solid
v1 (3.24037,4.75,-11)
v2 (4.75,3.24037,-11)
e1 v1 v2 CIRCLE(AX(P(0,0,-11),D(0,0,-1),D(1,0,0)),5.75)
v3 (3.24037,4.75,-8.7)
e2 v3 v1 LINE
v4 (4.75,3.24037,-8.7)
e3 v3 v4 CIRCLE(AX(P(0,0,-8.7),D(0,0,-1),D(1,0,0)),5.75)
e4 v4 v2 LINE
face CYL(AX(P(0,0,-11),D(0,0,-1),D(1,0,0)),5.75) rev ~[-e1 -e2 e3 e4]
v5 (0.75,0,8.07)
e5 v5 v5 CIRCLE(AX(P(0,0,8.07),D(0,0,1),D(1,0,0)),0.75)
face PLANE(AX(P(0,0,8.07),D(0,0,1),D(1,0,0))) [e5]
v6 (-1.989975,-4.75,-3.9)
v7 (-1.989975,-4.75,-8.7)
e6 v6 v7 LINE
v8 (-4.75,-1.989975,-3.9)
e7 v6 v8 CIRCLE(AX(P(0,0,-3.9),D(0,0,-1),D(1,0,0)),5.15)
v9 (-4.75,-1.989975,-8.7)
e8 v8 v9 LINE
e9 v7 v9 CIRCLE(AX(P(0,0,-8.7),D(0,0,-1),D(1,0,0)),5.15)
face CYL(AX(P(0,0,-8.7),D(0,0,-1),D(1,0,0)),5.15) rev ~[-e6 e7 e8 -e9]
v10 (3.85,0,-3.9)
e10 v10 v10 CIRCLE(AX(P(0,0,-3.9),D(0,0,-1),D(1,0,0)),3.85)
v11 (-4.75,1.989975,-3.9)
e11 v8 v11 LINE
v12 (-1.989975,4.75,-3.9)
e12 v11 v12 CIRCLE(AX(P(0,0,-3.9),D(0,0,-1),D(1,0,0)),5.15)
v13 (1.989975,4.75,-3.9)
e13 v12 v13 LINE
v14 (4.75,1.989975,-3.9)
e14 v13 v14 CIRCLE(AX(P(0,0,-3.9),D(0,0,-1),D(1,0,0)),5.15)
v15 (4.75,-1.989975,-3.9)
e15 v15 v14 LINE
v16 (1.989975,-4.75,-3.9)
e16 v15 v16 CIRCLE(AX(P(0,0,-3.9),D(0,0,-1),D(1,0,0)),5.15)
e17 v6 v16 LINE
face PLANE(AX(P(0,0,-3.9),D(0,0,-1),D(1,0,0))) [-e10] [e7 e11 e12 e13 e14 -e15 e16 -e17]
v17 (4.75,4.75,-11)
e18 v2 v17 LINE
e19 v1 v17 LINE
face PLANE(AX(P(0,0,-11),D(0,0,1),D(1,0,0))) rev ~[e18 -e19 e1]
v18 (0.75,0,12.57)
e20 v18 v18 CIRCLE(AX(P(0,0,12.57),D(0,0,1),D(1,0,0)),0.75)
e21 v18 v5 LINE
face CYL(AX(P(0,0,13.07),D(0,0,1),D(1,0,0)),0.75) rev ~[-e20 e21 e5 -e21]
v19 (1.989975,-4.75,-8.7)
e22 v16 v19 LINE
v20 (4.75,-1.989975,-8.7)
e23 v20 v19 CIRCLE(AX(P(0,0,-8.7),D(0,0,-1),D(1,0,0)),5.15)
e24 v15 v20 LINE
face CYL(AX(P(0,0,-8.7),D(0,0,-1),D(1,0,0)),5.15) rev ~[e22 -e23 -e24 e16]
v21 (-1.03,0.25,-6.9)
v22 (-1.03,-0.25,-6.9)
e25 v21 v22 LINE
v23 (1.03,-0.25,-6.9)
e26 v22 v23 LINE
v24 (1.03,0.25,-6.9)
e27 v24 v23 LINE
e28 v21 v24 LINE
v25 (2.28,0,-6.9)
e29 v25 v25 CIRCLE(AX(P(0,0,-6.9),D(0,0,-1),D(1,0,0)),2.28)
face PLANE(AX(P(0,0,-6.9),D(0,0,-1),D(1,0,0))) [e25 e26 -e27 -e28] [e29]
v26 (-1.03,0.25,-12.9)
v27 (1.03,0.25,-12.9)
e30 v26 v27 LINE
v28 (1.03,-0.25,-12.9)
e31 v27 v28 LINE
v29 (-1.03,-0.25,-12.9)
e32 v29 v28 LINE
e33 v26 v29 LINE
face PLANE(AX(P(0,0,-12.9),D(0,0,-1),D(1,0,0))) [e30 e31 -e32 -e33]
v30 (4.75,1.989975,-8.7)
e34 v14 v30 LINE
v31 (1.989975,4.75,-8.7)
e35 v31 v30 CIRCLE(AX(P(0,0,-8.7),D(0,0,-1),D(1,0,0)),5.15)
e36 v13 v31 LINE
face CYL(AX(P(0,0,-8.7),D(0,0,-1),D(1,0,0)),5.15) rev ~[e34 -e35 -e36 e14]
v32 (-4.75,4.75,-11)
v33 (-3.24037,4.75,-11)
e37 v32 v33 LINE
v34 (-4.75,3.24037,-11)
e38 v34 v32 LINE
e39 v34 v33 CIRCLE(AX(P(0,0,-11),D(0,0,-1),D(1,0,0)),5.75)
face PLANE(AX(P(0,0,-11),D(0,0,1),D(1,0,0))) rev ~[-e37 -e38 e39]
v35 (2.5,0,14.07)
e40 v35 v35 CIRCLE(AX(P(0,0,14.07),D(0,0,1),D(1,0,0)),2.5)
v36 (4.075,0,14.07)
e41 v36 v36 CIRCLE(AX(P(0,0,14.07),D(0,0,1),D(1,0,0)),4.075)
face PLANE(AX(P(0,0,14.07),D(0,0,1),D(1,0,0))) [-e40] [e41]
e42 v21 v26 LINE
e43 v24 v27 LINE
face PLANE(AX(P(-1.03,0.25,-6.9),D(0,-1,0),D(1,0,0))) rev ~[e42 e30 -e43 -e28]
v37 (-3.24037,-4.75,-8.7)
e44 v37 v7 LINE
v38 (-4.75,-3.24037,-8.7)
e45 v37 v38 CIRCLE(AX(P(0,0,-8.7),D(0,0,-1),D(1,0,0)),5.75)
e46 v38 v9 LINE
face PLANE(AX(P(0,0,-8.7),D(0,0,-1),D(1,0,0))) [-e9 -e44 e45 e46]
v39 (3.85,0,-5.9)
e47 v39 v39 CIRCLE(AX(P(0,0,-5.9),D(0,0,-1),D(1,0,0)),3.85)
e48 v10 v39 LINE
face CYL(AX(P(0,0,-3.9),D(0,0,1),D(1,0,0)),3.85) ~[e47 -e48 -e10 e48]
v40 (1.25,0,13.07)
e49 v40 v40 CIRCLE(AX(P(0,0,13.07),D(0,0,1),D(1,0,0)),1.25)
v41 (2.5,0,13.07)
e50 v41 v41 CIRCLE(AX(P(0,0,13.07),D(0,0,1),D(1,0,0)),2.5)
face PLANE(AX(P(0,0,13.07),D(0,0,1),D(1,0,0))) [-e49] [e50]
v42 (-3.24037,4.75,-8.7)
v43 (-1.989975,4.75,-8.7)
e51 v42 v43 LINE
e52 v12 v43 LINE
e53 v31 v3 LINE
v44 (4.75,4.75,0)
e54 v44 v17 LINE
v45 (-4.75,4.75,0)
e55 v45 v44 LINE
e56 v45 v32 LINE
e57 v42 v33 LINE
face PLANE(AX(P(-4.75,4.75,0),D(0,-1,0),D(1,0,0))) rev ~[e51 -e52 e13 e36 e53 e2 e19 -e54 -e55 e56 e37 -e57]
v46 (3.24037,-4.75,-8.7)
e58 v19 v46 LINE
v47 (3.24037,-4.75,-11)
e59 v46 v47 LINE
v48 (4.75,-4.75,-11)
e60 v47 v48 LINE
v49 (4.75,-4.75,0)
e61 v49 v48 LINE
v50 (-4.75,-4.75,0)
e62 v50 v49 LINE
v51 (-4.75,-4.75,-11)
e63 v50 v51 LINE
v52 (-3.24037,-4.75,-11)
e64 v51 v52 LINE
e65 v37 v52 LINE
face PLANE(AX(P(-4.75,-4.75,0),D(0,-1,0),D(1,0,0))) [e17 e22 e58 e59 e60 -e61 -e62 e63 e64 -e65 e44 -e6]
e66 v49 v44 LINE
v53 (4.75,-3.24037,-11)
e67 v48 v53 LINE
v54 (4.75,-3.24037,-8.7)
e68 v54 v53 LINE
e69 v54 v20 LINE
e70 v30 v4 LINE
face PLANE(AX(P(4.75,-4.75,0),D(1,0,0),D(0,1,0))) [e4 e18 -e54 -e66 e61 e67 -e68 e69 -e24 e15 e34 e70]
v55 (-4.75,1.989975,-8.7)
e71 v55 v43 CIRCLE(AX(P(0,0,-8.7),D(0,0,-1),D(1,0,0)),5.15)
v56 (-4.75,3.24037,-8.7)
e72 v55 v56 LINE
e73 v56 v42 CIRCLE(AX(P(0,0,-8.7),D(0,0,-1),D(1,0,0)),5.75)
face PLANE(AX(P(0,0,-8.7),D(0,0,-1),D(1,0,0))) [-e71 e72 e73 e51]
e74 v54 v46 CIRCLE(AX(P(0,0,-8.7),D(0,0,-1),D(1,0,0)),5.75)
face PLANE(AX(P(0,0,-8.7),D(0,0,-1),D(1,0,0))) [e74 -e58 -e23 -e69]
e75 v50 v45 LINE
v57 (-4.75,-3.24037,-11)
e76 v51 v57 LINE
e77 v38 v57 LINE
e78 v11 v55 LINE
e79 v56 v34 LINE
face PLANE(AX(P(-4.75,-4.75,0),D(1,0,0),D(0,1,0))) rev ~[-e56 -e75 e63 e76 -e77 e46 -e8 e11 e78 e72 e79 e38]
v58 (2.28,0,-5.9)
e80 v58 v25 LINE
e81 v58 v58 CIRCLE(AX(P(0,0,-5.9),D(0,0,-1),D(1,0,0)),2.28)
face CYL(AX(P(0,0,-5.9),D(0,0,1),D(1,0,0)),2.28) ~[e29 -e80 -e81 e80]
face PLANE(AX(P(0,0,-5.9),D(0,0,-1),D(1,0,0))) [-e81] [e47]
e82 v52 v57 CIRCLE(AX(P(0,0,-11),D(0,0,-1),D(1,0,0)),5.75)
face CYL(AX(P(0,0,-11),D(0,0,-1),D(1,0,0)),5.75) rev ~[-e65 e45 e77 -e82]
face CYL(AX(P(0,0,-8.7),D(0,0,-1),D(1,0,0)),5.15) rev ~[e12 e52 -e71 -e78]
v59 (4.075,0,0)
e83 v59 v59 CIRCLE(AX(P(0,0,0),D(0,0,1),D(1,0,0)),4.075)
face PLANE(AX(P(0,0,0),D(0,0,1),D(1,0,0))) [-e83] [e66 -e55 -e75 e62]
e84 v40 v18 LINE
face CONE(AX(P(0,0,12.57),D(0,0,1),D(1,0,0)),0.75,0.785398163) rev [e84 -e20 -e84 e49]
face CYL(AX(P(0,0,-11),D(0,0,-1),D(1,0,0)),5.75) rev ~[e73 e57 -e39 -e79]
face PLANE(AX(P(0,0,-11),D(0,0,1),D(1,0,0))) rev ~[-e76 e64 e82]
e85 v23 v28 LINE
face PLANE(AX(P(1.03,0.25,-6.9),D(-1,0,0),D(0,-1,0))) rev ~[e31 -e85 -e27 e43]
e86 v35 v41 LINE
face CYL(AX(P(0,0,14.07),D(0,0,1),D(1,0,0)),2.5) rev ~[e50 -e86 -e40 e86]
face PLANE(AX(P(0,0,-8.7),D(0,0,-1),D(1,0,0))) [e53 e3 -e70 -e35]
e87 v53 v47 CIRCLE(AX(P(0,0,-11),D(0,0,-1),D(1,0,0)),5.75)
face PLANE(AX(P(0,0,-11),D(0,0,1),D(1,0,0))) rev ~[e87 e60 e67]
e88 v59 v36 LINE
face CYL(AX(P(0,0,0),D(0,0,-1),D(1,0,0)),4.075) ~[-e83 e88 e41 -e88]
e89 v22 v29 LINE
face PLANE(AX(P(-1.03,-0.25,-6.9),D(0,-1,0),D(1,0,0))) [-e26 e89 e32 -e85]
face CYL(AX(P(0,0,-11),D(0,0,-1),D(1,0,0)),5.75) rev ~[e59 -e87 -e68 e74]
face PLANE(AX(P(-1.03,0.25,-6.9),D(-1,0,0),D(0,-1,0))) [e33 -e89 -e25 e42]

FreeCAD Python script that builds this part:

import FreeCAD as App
import Part
import Sketcher
from FreeCAD import Vector


def edges_at(feature, points):
    """Names of the edges that pass closest to the given points."""
    edges = feature.Shape.Edges
    near = lambda p: min(range(len(edges)), key=lambda i: edges[i].distToShape(Part.Vertex(*p))[0])
    return sorted({f"Edge{near(p) + 1}" for p in points})

doc = App.newDocument("Part")
body = doc.addObject("PartDesign::Body", "Body")

# Sketch on XY plane
sketch1 = body.newObject("Sketcher::SketchObject", "Sketch")
sketch1.AttachmentSupport = (doc.getObject("XY_Plane"), [""])
sketch1.MapMode = "FlatFace"
sketch1.addGeometry([
    Part.LineSegment(Vector(-5, 5, 0), Vector(-5, -5, 0)),
    Part.LineSegment(Vector(-5, -5, 0), Vector(5, -5, 0)),
    Part.LineSegment(Vector(5, -5, 0), Vector(5, 5, 0)),
    Part.LineSegment(Vector(5, 5, 0), Vector(-5, 5, 0)),
], False)
sketch1.addConstraint([
    Sketcher.Constraint("Coincident", 0, 2, 1, 1),
    Sketcher.Constraint("Coincident", 1, 2, 2, 1),
    Sketcher.Constraint("Coincident", 2, 2, 3, 1),
    Sketcher.Constraint("Coincident", 3, 2, 0, 1),
    Sketcher.Constraint("Vertical", 0),
    Sketcher.Constraint("Horizontal", 1),
    Sketcher.Constraint("Vertical", 2),
    Sketcher.Constraint("Horizontal", 3),
    Sketcher.Constraint("Symmetric", 0, 2, 2, 2, -1, 1),
    Sketcher.Constraint("Equal", 3, 0),
    Sketcher.Constraint("DistanceX", 1, 1, 1, 2, 9.5),
])
pad1 = body.newObject("PartDesign::Pad", "Pad")
pad1.Profile = sketch1
pad1.Length = 11
pad1.Reversed = True

# Sketch on XY plane
sketch2 = body.newObject("Sketcher::SketchObject", "Sketch001")
sketch2.AttachmentSupport = (doc.getObject("XY_Plane"), [""])
sketch2.MapMode = "FlatFace"
sketch2.addGeometry(Part.Circle(Vector(0, 0, 0), Vector(0, 0, 1), 4.1), False)
sketch2.addConstraint([
    Sketcher.Constraint("Coincident", 0, 3, -1, 1),
    Sketcher.Constraint("Diameter", 0, 8.15),
])
pad2 = body.newObject("PartDesign::Pad", "Pad001")
pad2.Profile = sketch2
pad2.Length = 14.07

# Sketch on XY plane
sketch3 = body.newObject("Sketcher::SketchObject", "Sketch002")
sketch3.AttachmentSupport = (doc.getObject("XY_Plane"), [""])
sketch3.MapMode = "FlatFace"
sketch3.AttachmentOffset = App.Placement(Vector(0, 0, -11), App.Rotation())
sketch3.addGeometry(Part.Circle(Vector(0, 0, 0), Vector(0, 0, 1), 6), False)
sketch3.addConstraint([
    Sketcher.Constraint("Coincident", 0, 3, -1, 1),
    Sketcher.Constraint("Diameter", 0, 11.5),
])
pocket1 = body.newObject("PartDesign::Pocket", "Pocket")
pocket1.Profile = sketch3
pocket1.Length = 2.3
pocket1.Reversed = True

# Sketch on XY plane
sketch4 = body.newObject("Sketcher::SketchObject", "Sketch003")
sketch4.AttachmentSupport = (doc.getObject("XY_Plane"), [""])
sketch4.MapMode = "FlatFace"
sketch4.AttachmentOffset = App.Placement(Vector(0, 0, -8.7), App.Rotation())
sketch4.addGeometry(Part.Circle(Vector(0, 0, 0), Vector(0, 0, 1), 5), False)
sketch4.addConstraint([
    Sketcher.Constraint("Coincident", 0, 3, -1, 1),
    Sketcher.Constraint("Diameter", 0, 10.3),
])
pocket2 = body.newObject("PartDesign::Pocket", "Pocket001")
pocket2.Profile = sketch4
pocket2.Length = 4.8
pocket2.Reversed = True

# Sketch on XY plane
sketch5 = body.newObject("Sketcher::SketchObject", "Sketch004")
sketch5.AttachmentSupport = (doc.getObject("XY_Plane"), [""])
sketch5.MapMode = "FlatFace"
sketch5.AttachmentOffset = App.Placement(Vector(0, 0, 14.07), App.Rotation())
sketch5.addGeometry(Part.Circle(Vector(0, 0, 0), Vector(0, 0, 1), 2.5), False)
sketch5.addConstraint([
    Sketcher.Constraint("Coincident", 0, 3, -1, 1),
    Sketcher.Constraint("Diameter", 0, 5.0),
])
pocket3 = body.newObject("PartDesign::Pocket", "Pocket002")
pocket3.Profile = sketch5
pocket3.Length = 1

# Sketch on XY plane
sketch6 = body.newObject("Sketcher::SketchObject", "Sketch005")
sketch6.AttachmentSupport = (doc.getObject("XY_Plane"), [""])
sketch6.MapMode = "FlatFace"
sketch6.AttachmentOffset = App.Placement(Vector(0, 0, 13.07), App.Rotation())
sketch6.addGeometry(Part.Circle(Vector(0, 0, 0), Vector(0, 0, 1), 0.8), False)
sketch6.addConstraint([
    Sketcher.Constraint("Coincident", 0, 3, -1, 1),
    Sketcher.Constraint("Diameter", 0, 1.5),
])
pocket4 = body.newObject("PartDesign::Pocket", "Pocket003")
pocket4.Profile = sketch6
pocket4.Length = 5
doc.recompute()

chamfer = body.newObject("PartDesign::Chamfer", "Chamfer")
chamfer.Base = (pocket4, edges_at(pocket4, [(-0.75, 0, 13.07)]))
chamfer.Size = 0.5

# Sketch on XY plane
sketch7 = body.newObject("Sketcher::SketchObject", "Sketch006")
sketch7.AttachmentSupport = (doc.getObject("XY_Plane"), [""])
sketch7.MapMode = "FlatFace"
sketch7.AttachmentOffset = App.Placement(Vector(0, 0, -3.9), App.Rotation())
sketch7.addGeometry(Part.Circle(Vector(0, 0, 0), Vector(0, 0, 1), 3.9), False)
sketch7.addConstraint([
    Sketcher.Constraint("Coincident", 0, 3, -1, 1),
    Sketcher.Constraint("Diameter", 0, 7.7),
])
pad3 = body.newObject("PartDesign::Pad", "Pad002")
pad3.Profile = sketch7
pad3.Length = 2
pad3.Reversed = True

# Sketch on XY plane
sketch8 = body.newObject("Sketcher::SketchObject", "Sketch007")
sketch8.AttachmentSupport = (doc.getObject("XY_Plane"), [""])
sketch8.MapMode = "FlatFace"
sketch8.AttachmentOffset = App.Placement(Vector(0, 0, -5.9), App.Rotation())
sketch8.addGeometry(Part.Circle(Vector(0, 0, 0), Vector(0, 0, 1), 2.3), False)
sketch8.addConstraint([
    Sketcher.Constraint("Coincident", 0, 3, -1, 1),
    Sketcher.Constraint("Diameter", 0, 4.56),
])
pad4 = body.newObject("PartDesign::Pad", "Pad003")
pad4.Profile = sketch8
pad4.Length = 1
pad4.Reversed = True

# Sketch on XY plane
sketch9 = body.newObject("Sketcher::SketchObject", "Sketch008")
sketch9.AttachmentSupport = (doc.getObject("XY_Plane"), [""])
sketch9.MapMode = "FlatFace"
sketch9.AttachmentOffset = App.Placement(Vector(0, 0, -6.9), App.Rotation())
sketch9.addGeometry([
    Part.LineSegment(Vector(-1, -0.2, 0), Vector(-1, 0.2, 0)),
    Part.LineSegment(Vector(-1, 0.2, 0), Vector(1, 0.2, 0)),
    Part.LineSegment(Vector(1, 0.2, 0), Vector(1, -0.2, 0)),
    Part.LineSegment(Vector(1, -0.2, 0), Vector(-1, -0.2, 0)),
], False)
sketch9.addConstraint([
    Sketcher.Constraint("Coincident", 0, 2, 1, 1),
    Sketcher.Constraint("Coincident", 1, 2, 2, 1),
    Sketcher.Constraint("Coincident", 2, 2, 3, 1),
    Sketcher.Constraint("Coincident", 3, 2, 0, 1),
    Sketcher.Constraint("Vertical", 0),
    Sketcher.Constraint("Horizontal", 1),
    Sketcher.Constraint("Vertical", 2),
    Sketcher.Constraint("Horizontal", 3),
    Sketcher.Constraint("Symmetric", 0, 2, 2, 2, -1, 1),
    Sketcher.Constraint("DistanceY", 0, 1, 0, 2, 0.5),
    Sketcher.Constraint("DistanceX", 1, 1, 1, 2, 2.06),
])
pad5 = body.newObject("PartDesign::Pad", "Pad004")
pad5.Profile = sketch9
pad5.Length = 6
pad5.Reversed = True

doc.recompute()
